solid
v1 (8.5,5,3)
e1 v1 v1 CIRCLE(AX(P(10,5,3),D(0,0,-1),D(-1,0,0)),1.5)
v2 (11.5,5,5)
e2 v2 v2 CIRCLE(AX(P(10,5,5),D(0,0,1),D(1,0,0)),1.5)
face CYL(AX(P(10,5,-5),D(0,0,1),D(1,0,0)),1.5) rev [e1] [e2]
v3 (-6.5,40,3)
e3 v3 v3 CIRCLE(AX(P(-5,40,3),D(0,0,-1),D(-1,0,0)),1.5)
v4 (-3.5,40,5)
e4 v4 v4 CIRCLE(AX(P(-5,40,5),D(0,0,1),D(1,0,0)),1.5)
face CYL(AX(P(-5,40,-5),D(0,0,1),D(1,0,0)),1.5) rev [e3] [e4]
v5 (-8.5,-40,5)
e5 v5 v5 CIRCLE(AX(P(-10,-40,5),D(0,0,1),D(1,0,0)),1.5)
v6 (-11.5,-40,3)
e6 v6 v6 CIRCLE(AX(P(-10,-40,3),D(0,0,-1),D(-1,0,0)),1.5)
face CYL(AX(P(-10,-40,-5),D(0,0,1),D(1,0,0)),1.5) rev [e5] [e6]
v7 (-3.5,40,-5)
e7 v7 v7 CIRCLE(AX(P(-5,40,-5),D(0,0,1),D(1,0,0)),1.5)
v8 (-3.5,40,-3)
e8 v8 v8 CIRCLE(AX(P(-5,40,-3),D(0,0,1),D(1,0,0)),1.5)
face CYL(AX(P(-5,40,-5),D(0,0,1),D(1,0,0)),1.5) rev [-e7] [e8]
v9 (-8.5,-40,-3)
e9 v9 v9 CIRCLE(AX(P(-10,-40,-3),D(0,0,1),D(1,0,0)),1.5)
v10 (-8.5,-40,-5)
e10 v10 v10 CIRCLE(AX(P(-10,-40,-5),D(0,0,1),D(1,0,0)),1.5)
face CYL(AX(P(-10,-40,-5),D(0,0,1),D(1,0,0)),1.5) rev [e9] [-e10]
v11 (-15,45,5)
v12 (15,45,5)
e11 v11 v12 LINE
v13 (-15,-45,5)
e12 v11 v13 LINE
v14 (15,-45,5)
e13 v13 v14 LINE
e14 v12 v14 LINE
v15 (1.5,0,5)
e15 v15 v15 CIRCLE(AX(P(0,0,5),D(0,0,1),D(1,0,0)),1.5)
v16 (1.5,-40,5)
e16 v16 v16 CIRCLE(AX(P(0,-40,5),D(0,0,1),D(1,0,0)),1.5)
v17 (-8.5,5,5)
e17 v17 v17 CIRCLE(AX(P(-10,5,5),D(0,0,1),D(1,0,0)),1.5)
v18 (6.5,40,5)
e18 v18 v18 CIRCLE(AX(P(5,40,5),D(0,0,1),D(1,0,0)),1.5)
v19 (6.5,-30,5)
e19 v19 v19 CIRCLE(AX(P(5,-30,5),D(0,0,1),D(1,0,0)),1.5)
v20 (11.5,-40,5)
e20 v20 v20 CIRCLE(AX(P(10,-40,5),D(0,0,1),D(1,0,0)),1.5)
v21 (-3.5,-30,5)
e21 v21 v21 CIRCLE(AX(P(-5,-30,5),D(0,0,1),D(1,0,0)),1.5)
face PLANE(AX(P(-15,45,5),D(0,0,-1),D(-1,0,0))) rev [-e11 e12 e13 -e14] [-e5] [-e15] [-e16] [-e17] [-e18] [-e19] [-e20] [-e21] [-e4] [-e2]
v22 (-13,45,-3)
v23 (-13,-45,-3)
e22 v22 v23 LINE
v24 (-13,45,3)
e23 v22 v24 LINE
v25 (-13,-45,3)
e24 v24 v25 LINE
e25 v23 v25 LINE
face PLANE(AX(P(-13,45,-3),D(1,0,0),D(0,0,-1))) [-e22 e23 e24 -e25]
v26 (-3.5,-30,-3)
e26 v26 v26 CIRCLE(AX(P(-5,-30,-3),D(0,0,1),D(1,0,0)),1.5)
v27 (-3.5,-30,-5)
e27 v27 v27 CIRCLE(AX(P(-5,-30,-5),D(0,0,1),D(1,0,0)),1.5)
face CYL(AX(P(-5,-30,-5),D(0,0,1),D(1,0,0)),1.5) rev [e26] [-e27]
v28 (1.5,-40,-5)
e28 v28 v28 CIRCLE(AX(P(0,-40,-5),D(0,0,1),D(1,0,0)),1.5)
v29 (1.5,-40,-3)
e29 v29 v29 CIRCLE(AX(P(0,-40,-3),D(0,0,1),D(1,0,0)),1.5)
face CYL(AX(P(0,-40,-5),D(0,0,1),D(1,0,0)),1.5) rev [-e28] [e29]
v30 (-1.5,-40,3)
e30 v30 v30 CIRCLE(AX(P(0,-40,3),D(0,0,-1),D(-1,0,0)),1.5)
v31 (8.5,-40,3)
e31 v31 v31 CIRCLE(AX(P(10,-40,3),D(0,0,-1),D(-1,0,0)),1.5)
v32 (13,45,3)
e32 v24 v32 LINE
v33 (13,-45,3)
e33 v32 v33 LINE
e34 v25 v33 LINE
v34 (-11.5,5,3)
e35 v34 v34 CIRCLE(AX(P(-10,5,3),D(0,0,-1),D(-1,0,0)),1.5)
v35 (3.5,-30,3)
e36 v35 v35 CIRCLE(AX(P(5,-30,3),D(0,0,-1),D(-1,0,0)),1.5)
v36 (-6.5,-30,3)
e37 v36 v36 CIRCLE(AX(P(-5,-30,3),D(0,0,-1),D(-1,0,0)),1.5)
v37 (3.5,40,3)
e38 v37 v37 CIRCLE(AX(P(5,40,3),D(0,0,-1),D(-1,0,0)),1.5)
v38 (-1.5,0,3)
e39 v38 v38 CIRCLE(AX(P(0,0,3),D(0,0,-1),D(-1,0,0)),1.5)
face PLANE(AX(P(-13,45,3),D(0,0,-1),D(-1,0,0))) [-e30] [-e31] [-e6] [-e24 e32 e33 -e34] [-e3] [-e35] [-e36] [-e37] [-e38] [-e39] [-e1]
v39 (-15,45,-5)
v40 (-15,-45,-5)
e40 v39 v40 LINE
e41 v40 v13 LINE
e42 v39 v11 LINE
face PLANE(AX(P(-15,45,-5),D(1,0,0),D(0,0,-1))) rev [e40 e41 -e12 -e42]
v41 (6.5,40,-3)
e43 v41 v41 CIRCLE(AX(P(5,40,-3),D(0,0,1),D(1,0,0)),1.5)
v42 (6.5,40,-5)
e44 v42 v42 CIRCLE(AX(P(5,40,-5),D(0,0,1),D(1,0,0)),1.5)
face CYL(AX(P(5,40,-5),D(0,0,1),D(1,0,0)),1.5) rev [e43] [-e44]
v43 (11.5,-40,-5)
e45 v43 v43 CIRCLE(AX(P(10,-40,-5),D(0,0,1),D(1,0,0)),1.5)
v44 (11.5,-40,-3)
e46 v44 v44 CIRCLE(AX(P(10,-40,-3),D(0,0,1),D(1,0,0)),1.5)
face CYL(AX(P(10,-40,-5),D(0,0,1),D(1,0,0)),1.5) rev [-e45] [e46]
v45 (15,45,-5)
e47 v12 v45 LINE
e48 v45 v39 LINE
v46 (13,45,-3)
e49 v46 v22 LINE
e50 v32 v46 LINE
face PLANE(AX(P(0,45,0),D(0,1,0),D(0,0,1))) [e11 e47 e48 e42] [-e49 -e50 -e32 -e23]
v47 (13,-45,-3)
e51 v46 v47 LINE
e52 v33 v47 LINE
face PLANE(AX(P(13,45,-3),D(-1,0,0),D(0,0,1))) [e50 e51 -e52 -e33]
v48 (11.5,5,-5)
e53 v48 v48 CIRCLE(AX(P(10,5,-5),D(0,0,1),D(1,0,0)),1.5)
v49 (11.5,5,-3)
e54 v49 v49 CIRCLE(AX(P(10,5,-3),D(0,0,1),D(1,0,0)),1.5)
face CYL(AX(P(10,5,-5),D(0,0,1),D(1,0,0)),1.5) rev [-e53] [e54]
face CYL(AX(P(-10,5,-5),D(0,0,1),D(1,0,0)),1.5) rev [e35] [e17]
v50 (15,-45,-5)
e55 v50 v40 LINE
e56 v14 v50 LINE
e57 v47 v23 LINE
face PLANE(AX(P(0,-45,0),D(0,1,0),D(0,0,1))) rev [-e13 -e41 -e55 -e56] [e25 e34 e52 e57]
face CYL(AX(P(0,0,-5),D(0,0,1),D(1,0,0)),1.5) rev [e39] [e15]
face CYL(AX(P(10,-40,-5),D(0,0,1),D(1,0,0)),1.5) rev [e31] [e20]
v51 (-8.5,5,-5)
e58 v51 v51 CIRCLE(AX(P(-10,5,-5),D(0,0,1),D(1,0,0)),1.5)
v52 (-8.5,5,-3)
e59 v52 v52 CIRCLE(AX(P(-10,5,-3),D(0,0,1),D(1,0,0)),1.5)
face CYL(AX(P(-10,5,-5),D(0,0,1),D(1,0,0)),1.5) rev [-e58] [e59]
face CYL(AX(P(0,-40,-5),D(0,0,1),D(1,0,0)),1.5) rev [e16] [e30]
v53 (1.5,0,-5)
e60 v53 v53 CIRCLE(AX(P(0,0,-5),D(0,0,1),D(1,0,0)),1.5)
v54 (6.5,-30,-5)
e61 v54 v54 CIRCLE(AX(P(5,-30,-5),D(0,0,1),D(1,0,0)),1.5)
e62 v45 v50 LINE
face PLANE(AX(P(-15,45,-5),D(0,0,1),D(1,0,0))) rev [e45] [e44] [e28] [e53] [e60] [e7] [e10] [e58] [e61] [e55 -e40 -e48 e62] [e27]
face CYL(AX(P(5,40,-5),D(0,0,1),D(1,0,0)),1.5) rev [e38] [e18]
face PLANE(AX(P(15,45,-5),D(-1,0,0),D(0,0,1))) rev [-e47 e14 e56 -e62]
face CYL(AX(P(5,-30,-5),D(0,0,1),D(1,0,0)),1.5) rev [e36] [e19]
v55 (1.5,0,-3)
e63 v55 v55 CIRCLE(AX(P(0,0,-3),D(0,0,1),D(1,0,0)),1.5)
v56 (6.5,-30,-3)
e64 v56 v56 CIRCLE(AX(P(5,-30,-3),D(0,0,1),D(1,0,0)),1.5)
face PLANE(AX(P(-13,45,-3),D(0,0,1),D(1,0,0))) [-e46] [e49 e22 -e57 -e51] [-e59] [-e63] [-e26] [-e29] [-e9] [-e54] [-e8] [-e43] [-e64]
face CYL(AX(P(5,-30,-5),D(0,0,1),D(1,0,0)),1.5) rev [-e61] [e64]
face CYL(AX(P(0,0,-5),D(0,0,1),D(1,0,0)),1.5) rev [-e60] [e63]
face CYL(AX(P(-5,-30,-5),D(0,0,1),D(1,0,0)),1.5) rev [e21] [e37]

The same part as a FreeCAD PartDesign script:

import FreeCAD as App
import Part
import Sketcher


def add_polygon(sketch, points):
    """Adds a closed chain of lines whose ends are joined by coincident constraints."""
    first, n = sketch.GeometryCount, len(points)
    for a, b in zip(points, points[1:] + points[:1]):
        sketch.addGeometry(Part.LineSegment(App.Vector(*a, 0), App.Vector(*b, 0)), False)
    for i in range(n):
        sketch.addConstraint(Sketcher.Constraint("Coincident", first + i, 2, first + (i + 1) % n, 1))

doc = App.newDocument("Part")
body = doc.addObject("PartDesign::Body", "Body")

# Sketch on XZ plane
sketch1 = body.newObject("Sketcher::SketchObject", "Sketch")
sketch1.AttachmentSupport = (doc.getObject("XZ_Plane"), [""])
sketch1.MapMode = "FlatFace"
add_polygon(sketch1, [(-15, -5), (-15, 5), (15, 5), (15, -5)])  # lines 0-3
add_polygon(sketch1, [(13, 3), (-13, 3), (-13, -3), (13, -3)])  # lines 4-7
sketch1.addConstraint([
    Sketcher.Constraint("Vertical", 0),
    Sketcher.Constraint("Horizontal", 1),
    Sketcher.Constraint("Vertical", 2),
    Sketcher.Constraint("Horizontal", 3),
    Sketcher.Constraint("Horizontal", 4),
    Sketcher.Constraint("Vertical", 5),
    Sketcher.Constraint("Horizontal", 6),
    Sketcher.Constraint("Vertical", 7),
    Sketcher.Constraint("Symmetric", 0, 2, 2, 2, -1, 1),
    Sketcher.Constraint("Symmetric", 4, 2, 6, 2, -1, 1),
    Sketcher.Constraint("DistanceX", 1, 1, 1, 2, 30.0),
    Sketcher.Constraint("DistanceX", 4, 2, 4, 1, 26.0),
    Sketcher.Constraint("DistanceY", 0, 1, 0, 2, 10.0),
    Sketcher.Constraint("DistanceY", 5, 2, 5, 1, 6.0),
])
pad1 = body.newObject("PartDesign::Pad", "Pad")
pad1.Profile = sketch1
pad1.Length = 90
pad1.Midplane = True

# Sketch on XY plane
sketch2 = body.newObject("Sketcher::SketchObject", "Sketch001")
sketch2.AttachmentSupport = (doc.getObject("XY_Plane"), [""])
sketch2.MapMode = "FlatFace"
sketch2.AttachmentOffset = App.Placement(App.Vector(0, 0, 5), App.Rotation())
sketch2.addGeometry([
    Part.Circle(App.Vector(5, 40, 0), App.Vector(0, 0, 1), 1.5),  # 0
    Part.Circle(App.Vector(10, 5, 0), App.Vector(0, 0, 1), 1.5),  # 1
    Part.Circle(App.Vector(0, 0, 0), App.Vector(0, 0, 1), 1.5),  # 2
    Part.Circle(App.Vector(-10, 5, 0), App.Vector(0, 0, 1), 1.5),  # 3
    Part.Circle(App.Vector(-5, 40, 0), App.Vector(0, 0, 1), 1.5),  # 4
    Part.Circle(App.Vector(5, -30, 0), App.Vector(0, 0, 1), 1.5),  # 5
    Part.Circle(App.Vector(-5, -30, 0), App.Vector(0, 0, 1), 1.5),  # 6
    Part.Circle(App.Vector(-10, -40, 0), App.Vector(0, 0, 1), 1.5),  # 7
    Part.Circle(App.Vector(0, -40, 0), App.Vector(0, 0, 1), 1.5),  # 8
    Part.Circle(App.Vector(10, -40, 0), App.Vector(0, 0, 1), 1.5),  # 9
], False)
sketch2.addConstraint([
    Sketcher.Constraint("Coincident", 2, 3, -1, 1),
    Sketcher.Constraint("Equal", 0, 1),
    Sketcher.Constraint("Equal", 1, 2),
    Sketcher.Constraint("Equal", 2, 3),
    Sketcher.Constraint("Equal", 3, 4),
    Sketcher.Constraint("Equal", 4, 5),
    Sketcher.Constraint("Equal", 5, 6),
    Sketcher.Constraint("Equal", 6, 7),
    Sketcher.Constraint("Equal", 7, 8),
    Sketcher.Constraint("Equal", 8, 9),
    Sketcher.Constraint("Symmetric", 1, 3, 3, 3, -2),
    Sketcher.Constraint("Symmetric", 0, 3, 4, 3, -2),
    Sketcher.Constraint("Symmetric", 5, 3, 6, 3, -2),
    Sketcher.Constraint("Symmetric", 7, 3, 9, 3, -2),
    Sketcher.Constraint("PointOnObject", 8, 3, -2),
    Sketcher.Constraint("Horizontal", 7, 3, 8, 3),
    Sketcher.Constraint("Vertical", 0, 3, 5, 3),
    Sketcher.Constraint("Vertical", 3, 3, 7, 3),
    Sketcher.Constraint("Diameter", 0, 3.0),
    Sketcher.Constraint("DistanceX", -1, 1, 0, 3, 5.0),
    Sketcher.Constraint("DistanceY", -1, 1, 0, 3, 40.0),
    Sketcher.Constraint("DistanceX", -1, 1, 1, 3, 10.0),
    Sketcher.Constraint("DistanceY", -1, 1, 1, 3, 5.0),
    Sketcher.Constraint("DistanceY", 5, 3, -1, 1, 30.0),
    Sketcher.Constraint("DistanceY", 7, 3, -1, 1, 40.0),
])
pocket1 = body.newObject("PartDesign::Pocket", "Pocket")
pocket1.Profile = sketch2
pocket1.Type = "ThroughAll"

doc.recompute()
